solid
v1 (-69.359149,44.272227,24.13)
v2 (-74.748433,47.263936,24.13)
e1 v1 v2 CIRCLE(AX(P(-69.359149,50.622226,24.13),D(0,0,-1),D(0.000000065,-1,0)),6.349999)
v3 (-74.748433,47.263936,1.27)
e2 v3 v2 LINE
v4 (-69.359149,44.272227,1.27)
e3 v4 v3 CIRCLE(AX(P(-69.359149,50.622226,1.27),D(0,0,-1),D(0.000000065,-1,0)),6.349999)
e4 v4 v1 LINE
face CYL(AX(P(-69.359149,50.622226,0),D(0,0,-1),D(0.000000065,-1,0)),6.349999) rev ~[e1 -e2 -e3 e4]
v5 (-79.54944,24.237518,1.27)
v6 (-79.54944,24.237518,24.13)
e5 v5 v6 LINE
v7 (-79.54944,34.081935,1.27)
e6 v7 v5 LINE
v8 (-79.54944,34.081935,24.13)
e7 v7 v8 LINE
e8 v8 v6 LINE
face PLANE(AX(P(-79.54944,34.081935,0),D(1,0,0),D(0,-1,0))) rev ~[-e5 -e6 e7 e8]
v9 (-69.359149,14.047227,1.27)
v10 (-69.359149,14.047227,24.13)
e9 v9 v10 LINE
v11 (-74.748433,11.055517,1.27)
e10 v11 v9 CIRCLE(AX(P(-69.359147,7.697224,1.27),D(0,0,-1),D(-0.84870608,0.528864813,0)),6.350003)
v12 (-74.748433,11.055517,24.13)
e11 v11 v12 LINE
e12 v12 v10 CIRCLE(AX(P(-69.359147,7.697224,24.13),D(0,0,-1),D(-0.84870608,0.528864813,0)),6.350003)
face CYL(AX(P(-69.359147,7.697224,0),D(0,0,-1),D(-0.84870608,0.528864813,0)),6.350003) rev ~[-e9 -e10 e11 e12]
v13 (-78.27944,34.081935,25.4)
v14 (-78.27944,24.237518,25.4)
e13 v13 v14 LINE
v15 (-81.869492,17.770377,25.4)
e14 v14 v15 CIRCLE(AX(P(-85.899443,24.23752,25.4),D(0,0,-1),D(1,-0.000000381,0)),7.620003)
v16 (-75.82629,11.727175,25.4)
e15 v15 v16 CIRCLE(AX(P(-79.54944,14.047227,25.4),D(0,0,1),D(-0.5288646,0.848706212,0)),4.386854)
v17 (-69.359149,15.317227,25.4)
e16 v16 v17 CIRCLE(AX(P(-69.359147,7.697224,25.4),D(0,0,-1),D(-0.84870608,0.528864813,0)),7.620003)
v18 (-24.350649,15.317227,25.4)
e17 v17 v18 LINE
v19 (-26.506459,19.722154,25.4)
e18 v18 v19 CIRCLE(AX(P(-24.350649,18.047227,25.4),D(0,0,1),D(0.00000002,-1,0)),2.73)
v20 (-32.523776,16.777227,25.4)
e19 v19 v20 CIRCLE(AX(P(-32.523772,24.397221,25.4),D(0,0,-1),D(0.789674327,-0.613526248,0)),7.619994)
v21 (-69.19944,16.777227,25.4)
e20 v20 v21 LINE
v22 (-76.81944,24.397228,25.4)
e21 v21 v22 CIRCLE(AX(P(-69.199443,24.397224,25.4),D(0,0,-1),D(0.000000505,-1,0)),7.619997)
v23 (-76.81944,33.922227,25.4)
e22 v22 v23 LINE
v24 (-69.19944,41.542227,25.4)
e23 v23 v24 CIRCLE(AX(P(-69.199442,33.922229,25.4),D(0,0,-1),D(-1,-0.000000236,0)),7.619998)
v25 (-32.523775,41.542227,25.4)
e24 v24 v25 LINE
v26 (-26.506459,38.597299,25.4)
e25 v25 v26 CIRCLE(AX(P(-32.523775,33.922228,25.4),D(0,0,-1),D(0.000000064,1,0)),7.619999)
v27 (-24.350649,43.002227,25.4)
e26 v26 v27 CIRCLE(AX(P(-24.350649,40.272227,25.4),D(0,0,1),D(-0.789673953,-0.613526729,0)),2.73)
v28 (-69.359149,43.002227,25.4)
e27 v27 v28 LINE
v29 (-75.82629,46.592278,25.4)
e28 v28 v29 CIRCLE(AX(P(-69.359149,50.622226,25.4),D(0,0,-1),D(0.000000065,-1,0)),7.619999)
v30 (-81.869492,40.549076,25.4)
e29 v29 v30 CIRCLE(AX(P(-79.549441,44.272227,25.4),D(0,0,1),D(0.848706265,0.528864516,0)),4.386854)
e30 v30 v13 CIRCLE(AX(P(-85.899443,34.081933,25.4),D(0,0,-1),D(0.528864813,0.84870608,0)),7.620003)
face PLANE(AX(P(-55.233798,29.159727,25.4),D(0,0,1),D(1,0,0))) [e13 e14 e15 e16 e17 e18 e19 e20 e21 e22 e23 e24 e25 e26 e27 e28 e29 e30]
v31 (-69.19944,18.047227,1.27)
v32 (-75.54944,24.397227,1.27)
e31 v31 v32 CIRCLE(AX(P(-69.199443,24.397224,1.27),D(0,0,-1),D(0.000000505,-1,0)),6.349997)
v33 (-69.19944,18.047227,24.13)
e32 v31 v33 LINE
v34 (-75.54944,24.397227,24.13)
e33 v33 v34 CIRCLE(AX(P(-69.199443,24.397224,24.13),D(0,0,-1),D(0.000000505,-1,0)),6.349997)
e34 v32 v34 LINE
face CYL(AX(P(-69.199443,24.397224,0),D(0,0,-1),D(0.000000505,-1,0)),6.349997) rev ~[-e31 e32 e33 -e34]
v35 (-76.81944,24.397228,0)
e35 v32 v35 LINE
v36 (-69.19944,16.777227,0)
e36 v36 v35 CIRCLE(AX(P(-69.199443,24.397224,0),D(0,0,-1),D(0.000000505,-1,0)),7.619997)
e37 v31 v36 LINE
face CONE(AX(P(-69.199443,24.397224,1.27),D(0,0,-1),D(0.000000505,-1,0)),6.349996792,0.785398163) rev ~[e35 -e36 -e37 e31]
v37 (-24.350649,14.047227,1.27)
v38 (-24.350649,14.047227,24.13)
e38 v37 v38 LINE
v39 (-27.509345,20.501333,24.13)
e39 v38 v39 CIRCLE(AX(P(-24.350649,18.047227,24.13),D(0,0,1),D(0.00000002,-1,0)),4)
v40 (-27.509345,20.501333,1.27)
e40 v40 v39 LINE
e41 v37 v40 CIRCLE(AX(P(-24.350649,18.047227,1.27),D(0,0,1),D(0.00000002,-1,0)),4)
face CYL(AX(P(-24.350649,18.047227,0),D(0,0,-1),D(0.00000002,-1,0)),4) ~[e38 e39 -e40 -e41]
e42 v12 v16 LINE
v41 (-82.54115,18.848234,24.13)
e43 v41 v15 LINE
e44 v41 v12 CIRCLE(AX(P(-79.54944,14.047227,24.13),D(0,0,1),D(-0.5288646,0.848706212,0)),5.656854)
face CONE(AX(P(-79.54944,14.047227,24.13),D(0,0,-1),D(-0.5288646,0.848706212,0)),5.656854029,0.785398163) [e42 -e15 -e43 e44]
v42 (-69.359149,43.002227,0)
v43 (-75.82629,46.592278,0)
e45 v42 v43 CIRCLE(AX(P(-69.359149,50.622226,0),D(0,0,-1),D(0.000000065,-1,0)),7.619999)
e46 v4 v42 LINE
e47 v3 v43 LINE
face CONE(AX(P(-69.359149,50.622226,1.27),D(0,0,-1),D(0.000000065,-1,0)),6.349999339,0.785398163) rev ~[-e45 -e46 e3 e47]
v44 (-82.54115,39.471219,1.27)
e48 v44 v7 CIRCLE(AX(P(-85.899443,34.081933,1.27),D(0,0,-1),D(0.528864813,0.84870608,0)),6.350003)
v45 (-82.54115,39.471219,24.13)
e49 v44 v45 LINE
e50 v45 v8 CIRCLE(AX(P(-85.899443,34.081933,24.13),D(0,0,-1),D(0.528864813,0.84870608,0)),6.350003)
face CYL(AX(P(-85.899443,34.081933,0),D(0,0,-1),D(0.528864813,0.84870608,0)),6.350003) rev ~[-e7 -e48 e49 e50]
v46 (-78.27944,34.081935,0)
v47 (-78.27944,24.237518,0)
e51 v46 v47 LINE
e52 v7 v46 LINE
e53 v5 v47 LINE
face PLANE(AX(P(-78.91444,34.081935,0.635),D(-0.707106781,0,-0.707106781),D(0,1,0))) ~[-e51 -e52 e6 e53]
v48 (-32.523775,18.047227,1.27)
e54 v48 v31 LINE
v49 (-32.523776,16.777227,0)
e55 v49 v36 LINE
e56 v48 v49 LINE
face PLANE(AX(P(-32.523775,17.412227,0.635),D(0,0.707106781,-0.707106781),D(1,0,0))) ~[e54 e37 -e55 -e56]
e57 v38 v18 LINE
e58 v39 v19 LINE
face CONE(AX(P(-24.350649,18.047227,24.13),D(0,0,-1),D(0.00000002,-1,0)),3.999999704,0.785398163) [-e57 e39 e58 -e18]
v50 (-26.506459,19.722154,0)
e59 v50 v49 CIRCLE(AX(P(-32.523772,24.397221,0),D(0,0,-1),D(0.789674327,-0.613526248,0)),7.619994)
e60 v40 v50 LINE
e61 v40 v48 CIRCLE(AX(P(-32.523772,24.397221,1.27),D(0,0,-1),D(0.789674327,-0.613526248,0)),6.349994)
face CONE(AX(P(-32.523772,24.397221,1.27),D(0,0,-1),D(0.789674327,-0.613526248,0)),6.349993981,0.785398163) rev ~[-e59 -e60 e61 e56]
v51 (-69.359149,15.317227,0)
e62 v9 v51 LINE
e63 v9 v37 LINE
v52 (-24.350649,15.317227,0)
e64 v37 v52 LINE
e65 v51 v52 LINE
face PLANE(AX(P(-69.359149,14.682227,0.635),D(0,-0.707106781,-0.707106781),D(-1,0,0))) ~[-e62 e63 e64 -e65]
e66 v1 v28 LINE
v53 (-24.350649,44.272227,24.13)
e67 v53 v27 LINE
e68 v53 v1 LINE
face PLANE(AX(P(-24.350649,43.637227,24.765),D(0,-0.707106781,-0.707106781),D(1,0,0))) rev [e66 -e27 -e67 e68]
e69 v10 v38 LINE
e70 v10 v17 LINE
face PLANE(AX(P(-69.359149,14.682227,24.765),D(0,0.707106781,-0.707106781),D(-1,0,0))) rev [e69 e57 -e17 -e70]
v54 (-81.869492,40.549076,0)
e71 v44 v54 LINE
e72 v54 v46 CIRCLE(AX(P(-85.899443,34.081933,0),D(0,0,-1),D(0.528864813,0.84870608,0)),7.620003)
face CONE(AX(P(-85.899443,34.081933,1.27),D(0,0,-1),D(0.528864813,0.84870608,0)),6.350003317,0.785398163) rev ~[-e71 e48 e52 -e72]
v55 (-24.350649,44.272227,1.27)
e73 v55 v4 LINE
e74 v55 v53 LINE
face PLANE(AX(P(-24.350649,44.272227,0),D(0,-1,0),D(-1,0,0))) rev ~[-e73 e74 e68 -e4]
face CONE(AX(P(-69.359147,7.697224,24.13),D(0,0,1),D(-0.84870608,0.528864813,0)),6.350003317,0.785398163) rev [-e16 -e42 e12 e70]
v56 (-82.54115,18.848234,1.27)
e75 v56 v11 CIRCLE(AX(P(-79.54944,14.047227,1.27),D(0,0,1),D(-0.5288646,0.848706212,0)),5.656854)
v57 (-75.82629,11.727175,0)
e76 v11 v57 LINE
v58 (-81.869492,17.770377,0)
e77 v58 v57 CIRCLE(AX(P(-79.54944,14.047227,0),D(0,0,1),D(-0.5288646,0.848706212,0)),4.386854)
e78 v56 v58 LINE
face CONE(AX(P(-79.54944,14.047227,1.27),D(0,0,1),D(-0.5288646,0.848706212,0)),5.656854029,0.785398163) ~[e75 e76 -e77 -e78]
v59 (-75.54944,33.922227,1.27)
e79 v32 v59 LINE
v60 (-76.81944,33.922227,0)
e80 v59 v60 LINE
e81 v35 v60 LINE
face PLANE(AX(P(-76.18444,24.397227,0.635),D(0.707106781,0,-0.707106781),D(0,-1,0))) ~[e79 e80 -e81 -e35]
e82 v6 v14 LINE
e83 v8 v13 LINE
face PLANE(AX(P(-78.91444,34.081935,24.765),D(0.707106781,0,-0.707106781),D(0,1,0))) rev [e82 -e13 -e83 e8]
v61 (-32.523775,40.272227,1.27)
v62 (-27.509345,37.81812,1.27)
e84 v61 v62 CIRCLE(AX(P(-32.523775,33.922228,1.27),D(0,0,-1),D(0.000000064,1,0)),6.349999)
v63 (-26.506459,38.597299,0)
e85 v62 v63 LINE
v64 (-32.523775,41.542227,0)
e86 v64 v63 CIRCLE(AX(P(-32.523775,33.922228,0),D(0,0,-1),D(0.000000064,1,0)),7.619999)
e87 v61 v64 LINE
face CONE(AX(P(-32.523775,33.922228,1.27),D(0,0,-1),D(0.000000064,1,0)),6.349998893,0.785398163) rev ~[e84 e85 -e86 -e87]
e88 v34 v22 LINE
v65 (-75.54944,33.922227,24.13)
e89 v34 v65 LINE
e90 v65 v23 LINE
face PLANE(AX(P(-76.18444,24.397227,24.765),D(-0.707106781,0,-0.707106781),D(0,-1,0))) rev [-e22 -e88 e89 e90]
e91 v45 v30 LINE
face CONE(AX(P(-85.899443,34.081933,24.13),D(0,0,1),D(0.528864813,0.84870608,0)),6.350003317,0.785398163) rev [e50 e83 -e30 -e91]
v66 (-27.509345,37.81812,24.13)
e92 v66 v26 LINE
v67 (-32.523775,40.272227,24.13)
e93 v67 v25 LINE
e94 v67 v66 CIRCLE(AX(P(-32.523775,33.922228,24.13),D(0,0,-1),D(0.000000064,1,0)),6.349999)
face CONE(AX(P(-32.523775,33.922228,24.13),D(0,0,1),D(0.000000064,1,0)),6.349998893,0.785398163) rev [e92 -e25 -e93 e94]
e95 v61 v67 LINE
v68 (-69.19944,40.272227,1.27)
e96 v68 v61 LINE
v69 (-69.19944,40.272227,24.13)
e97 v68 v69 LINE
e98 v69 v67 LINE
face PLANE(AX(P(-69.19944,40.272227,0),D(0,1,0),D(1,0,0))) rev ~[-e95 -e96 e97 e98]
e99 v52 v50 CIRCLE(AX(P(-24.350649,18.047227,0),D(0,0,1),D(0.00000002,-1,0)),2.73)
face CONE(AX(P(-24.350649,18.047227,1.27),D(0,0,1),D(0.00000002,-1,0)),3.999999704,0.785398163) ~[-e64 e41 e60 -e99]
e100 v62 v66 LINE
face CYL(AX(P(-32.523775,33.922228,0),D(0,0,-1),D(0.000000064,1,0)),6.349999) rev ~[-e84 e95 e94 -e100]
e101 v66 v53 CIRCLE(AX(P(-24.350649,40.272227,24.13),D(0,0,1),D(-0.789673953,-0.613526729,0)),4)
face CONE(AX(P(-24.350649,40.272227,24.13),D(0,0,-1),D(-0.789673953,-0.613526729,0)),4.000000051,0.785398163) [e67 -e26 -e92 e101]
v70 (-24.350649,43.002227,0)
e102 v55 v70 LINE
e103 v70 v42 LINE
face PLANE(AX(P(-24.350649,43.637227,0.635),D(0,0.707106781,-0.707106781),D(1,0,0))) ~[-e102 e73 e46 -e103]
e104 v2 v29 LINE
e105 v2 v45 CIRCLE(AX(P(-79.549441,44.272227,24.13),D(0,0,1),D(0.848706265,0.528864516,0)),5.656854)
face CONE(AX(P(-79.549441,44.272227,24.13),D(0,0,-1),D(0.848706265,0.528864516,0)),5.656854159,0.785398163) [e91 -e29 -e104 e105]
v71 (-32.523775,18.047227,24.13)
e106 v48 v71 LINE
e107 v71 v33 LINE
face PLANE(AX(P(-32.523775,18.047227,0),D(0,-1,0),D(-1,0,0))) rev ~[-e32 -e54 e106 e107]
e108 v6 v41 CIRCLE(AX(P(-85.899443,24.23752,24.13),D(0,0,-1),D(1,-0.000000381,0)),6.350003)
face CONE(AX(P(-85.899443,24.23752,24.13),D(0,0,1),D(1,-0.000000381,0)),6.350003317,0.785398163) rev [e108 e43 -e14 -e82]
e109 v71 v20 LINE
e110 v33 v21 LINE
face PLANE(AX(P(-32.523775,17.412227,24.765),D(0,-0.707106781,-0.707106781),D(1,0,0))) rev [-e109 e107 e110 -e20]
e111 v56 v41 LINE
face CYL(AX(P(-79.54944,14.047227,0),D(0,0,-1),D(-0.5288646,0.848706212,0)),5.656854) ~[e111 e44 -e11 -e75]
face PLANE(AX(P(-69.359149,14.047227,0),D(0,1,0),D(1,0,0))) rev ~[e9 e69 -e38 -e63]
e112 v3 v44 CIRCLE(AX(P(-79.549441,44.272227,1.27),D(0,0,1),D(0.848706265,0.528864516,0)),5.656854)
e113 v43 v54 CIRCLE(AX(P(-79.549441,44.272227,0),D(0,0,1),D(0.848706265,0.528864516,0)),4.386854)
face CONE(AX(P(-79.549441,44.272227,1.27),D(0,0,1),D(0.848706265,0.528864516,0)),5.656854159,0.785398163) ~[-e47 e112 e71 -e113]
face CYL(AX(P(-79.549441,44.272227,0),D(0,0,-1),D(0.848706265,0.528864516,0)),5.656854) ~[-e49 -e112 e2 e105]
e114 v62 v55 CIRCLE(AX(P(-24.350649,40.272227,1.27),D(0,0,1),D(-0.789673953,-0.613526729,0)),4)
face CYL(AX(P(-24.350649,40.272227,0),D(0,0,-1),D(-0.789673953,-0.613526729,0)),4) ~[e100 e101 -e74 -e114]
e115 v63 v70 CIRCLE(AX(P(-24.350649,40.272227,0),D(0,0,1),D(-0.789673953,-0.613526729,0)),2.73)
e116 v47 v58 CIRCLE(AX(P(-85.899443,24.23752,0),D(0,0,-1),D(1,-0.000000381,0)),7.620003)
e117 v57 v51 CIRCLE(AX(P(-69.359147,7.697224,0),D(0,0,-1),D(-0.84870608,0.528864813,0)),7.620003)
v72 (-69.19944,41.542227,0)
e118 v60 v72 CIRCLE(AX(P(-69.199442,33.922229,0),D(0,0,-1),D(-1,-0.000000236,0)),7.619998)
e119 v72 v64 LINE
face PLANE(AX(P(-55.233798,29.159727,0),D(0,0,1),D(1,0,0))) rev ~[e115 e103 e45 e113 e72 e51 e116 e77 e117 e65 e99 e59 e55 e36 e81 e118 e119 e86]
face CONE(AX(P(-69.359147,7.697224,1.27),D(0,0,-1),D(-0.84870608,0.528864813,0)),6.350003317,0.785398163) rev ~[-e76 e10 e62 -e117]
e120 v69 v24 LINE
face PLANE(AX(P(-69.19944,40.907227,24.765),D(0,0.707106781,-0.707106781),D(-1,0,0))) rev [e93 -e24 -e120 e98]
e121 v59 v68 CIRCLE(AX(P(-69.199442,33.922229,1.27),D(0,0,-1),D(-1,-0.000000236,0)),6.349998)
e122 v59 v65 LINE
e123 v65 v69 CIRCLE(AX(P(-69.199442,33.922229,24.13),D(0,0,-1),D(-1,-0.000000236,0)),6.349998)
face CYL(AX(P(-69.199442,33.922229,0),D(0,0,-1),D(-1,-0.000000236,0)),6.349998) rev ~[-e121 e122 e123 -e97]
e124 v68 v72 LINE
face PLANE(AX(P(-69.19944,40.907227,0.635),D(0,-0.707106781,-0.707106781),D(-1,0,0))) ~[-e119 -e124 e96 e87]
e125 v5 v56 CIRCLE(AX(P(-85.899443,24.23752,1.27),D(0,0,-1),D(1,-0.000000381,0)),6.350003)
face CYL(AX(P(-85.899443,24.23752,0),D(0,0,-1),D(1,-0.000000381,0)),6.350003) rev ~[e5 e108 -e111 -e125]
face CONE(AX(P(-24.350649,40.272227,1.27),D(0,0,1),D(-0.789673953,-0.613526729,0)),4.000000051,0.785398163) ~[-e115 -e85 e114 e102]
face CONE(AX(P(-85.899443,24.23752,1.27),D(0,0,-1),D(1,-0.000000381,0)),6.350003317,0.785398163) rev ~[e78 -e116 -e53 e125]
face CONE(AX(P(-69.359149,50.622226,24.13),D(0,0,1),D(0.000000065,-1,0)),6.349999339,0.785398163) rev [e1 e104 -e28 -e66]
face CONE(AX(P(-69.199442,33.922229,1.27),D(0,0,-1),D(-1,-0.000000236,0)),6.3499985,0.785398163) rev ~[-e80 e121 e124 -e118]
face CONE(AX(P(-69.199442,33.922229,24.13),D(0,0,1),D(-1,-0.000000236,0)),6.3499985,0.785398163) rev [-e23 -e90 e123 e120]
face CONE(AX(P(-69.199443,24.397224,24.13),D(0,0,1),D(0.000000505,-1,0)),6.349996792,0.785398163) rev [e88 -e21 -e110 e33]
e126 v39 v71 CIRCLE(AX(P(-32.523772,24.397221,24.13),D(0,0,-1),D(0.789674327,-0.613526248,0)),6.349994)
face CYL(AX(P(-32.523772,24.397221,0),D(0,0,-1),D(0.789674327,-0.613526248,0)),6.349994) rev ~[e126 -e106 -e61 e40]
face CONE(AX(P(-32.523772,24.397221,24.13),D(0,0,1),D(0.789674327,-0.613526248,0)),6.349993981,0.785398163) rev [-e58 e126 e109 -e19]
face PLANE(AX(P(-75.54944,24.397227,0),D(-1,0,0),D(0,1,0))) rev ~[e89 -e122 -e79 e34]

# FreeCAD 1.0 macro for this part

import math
import FreeCAD as App
import Part
import Sketcher
from FreeCAD import Vector
Q = App.Units.Quantity

doc = App.newDocument("Part")
body = doc.addObject("PartDesign::Body", "Body")

# Sketch on XY plane
sketch1 = body.newObject("Sketcher::SketchObject", "Sketch")
sketch1.AttachmentSupport = (doc.getObject("XY_Plane"), [""])
sketch1.MapMode = "FlatFace"
sketch1.addGeometry([
    Part.ArcOfCircle(Part.Circle(Vector(-69.2, 24.4, 0), Vector(0, 0, 1), 6.3), math.radians(180), math.radians(270)),  # 0
    Part.LineSegment(Vector(-75.5, 24.4, 0), Vector(-75.5, 33.9, 0)),  # 1
    Part.ArcOfCircle(Part.Circle(Vector(-69.2, 33.9, 0), Vector(0, 0, 1), 6.3), math.radians(90), math.radians(180)),  # 2
    Part.LineSegment(Vector(-69.2, 40.3, 0), Vector(-32.5, 40.3, 0)),  # 3
    Part.ArcOfCircle(Part.Circle(Vector(-32.5, 33.9, 0), Vector(0, 0, 1), 6.3), math.radians(38), math.radians(90)),  # 4
    Part.ArcOfCircle(Part.Circle(Vector(-24.4, 40.3, 0), Vector(0, 0, 1), 4), math.radians(-142), math.radians(90)),  # 5
    Part.LineSegment(Vector(-24.4, 44.3, 0), Vector(-69.4, 44.3, 0)),  # 6
    Part.ArcOfCircle(Part.Circle(Vector(-69.4, 50.6, 0), Vector(0, 0, 1), 6.3), math.radians(-148), math.radians(-90)),  # 7
    Part.ArcOfCircle(Part.Circle(Vector(-79.5, 44.3, 0), Vector(0, 0, 1), 5.7), math.radians(32), math.radians(238)),  # 8
    Part.ArcOfCircle(Part.Circle(Vector(-85.9, 34.1, 0), Vector(0, 0, 1), 6.4), math.radians(0), math.radians(58)),  # 9
    Part.LineSegment(Vector(-79.5, 34.1, 0), Vector(-79.5, 24.2, 0)),  # 10
    Part.ArcOfCircle(Part.Circle(Vector(-85.9, 24.2, 0), Vector(0, 0, 1), 6.4), math.radians(-58), math.radians(0)),  # 11
    Part.ArcOfCircle(Part.Circle(Vector(-79.5, 14, 0), Vector(0, 0, 1), 5.7), math.radians(122), math.radians(328)),  # 12
    Part.ArcOfCircle(Part.Circle(Vector(-69.4, 7.7, 0), Vector(0, 0, 1), 6.4), math.radians(90), math.radians(148)),  # 13
    Part.LineSegment(Vector(-69.4, 14, 0), Vector(-24.4, 14, 0)),  # 14
    Part.ArcOfCircle(Part.Circle(Vector(-24.4, 18, 0), Vector(0, 0, 1), 4), math.radians(-90), math.radians(142)),  # 15
    Part.ArcOfCircle(Part.Circle(Vector(-32.5, 24.4, 0), Vector(0, 0, 1), 6.3), math.radians(-90), math.radians(-38)),  # 16
    Part.LineSegment(Vector(-32.5, 18, 0), Vector(-69.2, 18, 0)),  # 17
], False)
sketch1.addConstraint([
    Sketcher.Constraint("Tangent", 0, 1, 1, 1),
    Sketcher.Constraint("Tangent", 1, 2, 2, 2),
    Sketcher.Constraint("Tangent", 2, 1, 3, 1),
    Sketcher.Constraint("Tangent", 3, 2, 4, 2),
    Sketcher.Constraint("Tangent", 4, 1, 5, 1),
    Sketcher.Constraint("Tangent", 5, 2, 6, 1),
    Sketcher.Constraint("Tangent", 6, 2, 7, 2),
    Sketcher.Constraint("Tangent", 7, 1, 8, 1),
    Sketcher.Constraint("Tangent", 8, 2, 9, 2),
    Sketcher.Constraint("Tangent", 9, 1, 10, 1),
    Sketcher.Constraint("Tangent", 10, 2, 11, 2),
    Sketcher.Constraint("Tangent", 11, 1, 12, 1),
    Sketcher.Constraint("Tangent", 12, 2, 13, 2),
    Sketcher.Constraint("Tangent", 13, 1, 14, 1),
    Sketcher.Constraint("Tangent", 14, 2, 15, 1),
    Sketcher.Constraint("Tangent", 15, 2, 16, 2),
    Sketcher.Constraint("Tangent", 16, 1, 17, 1),
    Sketcher.Constraint("Tangent", 17, 2, 0, 2),
    Sketcher.Constraint("Vertical", 1),
    Sketcher.Constraint("Horizontal", 3),
    Sketcher.Constraint("Horizontal", 6),
    Sketcher.Constraint("Vertical", 10),
    Sketcher.Constraint("Horizontal", 14),
    Sketcher.Constraint("Horizontal", 17),
    Sketcher.Constraint("Equal", 0, 2),
    Sketcher.Constraint("Equal", 2, 4),
    Sketcher.Constraint("Equal", 4, 7),
    Sketcher.Constraint("Equal", 9, 11),
    Sketcher.Constraint("Equal", 8, 12),
    Sketcher.Constraint("Equal", 11, 13),
    Sketcher.Constraint("Equal", 5, 15),
    Sketcher.Constraint("Horizontal", 5, 3, 2, 1),
    Sketcher.Constraint("Horizontal", 8, 3, 5, 2),
    Sketcher.Constraint("Horizontal", 12, 3, 13, 1),
    Sketcher.Constraint("Horizontal", 15, 3, 16, 1),
    Sketcher.Constraint("Vertical", 8, 3, 12, 3),
    Sketcher.Constraint("Vertical", 5, 3, 15, 3),
    Sketcher.Constraint("Vertical", 12, 3, 9, 1),
    Sketcher.Constraint("Vertical", 7, 1, 12, 2),
    Sketcher.Constraint("Vertical", 4, 1, 15, 2),
    Sketcher.Constraint("Radius", 0, Q("0.2499999 in")),
    Sketcher.Constraint("DistanceY", 1, 1, 1, 2, Q("0.375 in")),
    Sketcher.Constraint("Radius", 5, 4.0),
    Sketcher.Constraint("DistanceX", 6, 2, 6, 1, 45.0085),
    Sketcher.Constraint("Radius", 8, 5.656854),
    Sketcher.Constraint("DistanceX", 8, 3, 2, 3, 10.349999),
    Sketcher.Constraint("DistanceX", 2, 3, -1, 1, 69.199442),
    Sketcher.Constraint("DistanceY", -1, 1, 2, 3, 33.922229),
])
pad1 = body.newObject("PartDesign::Pad", "Pad")
pad1.Profile = sketch1
pad1.Length = Q("1 in")
doc.recompute()

chamfer = body.newObject("PartDesign::Chamfer", "Chamfer")
chamfer.Base = (pad1, ["Edge1"])
chamfer.UseAllEdges = True
chamfer.Size = Q("0.05 in")

doc.recompute()
